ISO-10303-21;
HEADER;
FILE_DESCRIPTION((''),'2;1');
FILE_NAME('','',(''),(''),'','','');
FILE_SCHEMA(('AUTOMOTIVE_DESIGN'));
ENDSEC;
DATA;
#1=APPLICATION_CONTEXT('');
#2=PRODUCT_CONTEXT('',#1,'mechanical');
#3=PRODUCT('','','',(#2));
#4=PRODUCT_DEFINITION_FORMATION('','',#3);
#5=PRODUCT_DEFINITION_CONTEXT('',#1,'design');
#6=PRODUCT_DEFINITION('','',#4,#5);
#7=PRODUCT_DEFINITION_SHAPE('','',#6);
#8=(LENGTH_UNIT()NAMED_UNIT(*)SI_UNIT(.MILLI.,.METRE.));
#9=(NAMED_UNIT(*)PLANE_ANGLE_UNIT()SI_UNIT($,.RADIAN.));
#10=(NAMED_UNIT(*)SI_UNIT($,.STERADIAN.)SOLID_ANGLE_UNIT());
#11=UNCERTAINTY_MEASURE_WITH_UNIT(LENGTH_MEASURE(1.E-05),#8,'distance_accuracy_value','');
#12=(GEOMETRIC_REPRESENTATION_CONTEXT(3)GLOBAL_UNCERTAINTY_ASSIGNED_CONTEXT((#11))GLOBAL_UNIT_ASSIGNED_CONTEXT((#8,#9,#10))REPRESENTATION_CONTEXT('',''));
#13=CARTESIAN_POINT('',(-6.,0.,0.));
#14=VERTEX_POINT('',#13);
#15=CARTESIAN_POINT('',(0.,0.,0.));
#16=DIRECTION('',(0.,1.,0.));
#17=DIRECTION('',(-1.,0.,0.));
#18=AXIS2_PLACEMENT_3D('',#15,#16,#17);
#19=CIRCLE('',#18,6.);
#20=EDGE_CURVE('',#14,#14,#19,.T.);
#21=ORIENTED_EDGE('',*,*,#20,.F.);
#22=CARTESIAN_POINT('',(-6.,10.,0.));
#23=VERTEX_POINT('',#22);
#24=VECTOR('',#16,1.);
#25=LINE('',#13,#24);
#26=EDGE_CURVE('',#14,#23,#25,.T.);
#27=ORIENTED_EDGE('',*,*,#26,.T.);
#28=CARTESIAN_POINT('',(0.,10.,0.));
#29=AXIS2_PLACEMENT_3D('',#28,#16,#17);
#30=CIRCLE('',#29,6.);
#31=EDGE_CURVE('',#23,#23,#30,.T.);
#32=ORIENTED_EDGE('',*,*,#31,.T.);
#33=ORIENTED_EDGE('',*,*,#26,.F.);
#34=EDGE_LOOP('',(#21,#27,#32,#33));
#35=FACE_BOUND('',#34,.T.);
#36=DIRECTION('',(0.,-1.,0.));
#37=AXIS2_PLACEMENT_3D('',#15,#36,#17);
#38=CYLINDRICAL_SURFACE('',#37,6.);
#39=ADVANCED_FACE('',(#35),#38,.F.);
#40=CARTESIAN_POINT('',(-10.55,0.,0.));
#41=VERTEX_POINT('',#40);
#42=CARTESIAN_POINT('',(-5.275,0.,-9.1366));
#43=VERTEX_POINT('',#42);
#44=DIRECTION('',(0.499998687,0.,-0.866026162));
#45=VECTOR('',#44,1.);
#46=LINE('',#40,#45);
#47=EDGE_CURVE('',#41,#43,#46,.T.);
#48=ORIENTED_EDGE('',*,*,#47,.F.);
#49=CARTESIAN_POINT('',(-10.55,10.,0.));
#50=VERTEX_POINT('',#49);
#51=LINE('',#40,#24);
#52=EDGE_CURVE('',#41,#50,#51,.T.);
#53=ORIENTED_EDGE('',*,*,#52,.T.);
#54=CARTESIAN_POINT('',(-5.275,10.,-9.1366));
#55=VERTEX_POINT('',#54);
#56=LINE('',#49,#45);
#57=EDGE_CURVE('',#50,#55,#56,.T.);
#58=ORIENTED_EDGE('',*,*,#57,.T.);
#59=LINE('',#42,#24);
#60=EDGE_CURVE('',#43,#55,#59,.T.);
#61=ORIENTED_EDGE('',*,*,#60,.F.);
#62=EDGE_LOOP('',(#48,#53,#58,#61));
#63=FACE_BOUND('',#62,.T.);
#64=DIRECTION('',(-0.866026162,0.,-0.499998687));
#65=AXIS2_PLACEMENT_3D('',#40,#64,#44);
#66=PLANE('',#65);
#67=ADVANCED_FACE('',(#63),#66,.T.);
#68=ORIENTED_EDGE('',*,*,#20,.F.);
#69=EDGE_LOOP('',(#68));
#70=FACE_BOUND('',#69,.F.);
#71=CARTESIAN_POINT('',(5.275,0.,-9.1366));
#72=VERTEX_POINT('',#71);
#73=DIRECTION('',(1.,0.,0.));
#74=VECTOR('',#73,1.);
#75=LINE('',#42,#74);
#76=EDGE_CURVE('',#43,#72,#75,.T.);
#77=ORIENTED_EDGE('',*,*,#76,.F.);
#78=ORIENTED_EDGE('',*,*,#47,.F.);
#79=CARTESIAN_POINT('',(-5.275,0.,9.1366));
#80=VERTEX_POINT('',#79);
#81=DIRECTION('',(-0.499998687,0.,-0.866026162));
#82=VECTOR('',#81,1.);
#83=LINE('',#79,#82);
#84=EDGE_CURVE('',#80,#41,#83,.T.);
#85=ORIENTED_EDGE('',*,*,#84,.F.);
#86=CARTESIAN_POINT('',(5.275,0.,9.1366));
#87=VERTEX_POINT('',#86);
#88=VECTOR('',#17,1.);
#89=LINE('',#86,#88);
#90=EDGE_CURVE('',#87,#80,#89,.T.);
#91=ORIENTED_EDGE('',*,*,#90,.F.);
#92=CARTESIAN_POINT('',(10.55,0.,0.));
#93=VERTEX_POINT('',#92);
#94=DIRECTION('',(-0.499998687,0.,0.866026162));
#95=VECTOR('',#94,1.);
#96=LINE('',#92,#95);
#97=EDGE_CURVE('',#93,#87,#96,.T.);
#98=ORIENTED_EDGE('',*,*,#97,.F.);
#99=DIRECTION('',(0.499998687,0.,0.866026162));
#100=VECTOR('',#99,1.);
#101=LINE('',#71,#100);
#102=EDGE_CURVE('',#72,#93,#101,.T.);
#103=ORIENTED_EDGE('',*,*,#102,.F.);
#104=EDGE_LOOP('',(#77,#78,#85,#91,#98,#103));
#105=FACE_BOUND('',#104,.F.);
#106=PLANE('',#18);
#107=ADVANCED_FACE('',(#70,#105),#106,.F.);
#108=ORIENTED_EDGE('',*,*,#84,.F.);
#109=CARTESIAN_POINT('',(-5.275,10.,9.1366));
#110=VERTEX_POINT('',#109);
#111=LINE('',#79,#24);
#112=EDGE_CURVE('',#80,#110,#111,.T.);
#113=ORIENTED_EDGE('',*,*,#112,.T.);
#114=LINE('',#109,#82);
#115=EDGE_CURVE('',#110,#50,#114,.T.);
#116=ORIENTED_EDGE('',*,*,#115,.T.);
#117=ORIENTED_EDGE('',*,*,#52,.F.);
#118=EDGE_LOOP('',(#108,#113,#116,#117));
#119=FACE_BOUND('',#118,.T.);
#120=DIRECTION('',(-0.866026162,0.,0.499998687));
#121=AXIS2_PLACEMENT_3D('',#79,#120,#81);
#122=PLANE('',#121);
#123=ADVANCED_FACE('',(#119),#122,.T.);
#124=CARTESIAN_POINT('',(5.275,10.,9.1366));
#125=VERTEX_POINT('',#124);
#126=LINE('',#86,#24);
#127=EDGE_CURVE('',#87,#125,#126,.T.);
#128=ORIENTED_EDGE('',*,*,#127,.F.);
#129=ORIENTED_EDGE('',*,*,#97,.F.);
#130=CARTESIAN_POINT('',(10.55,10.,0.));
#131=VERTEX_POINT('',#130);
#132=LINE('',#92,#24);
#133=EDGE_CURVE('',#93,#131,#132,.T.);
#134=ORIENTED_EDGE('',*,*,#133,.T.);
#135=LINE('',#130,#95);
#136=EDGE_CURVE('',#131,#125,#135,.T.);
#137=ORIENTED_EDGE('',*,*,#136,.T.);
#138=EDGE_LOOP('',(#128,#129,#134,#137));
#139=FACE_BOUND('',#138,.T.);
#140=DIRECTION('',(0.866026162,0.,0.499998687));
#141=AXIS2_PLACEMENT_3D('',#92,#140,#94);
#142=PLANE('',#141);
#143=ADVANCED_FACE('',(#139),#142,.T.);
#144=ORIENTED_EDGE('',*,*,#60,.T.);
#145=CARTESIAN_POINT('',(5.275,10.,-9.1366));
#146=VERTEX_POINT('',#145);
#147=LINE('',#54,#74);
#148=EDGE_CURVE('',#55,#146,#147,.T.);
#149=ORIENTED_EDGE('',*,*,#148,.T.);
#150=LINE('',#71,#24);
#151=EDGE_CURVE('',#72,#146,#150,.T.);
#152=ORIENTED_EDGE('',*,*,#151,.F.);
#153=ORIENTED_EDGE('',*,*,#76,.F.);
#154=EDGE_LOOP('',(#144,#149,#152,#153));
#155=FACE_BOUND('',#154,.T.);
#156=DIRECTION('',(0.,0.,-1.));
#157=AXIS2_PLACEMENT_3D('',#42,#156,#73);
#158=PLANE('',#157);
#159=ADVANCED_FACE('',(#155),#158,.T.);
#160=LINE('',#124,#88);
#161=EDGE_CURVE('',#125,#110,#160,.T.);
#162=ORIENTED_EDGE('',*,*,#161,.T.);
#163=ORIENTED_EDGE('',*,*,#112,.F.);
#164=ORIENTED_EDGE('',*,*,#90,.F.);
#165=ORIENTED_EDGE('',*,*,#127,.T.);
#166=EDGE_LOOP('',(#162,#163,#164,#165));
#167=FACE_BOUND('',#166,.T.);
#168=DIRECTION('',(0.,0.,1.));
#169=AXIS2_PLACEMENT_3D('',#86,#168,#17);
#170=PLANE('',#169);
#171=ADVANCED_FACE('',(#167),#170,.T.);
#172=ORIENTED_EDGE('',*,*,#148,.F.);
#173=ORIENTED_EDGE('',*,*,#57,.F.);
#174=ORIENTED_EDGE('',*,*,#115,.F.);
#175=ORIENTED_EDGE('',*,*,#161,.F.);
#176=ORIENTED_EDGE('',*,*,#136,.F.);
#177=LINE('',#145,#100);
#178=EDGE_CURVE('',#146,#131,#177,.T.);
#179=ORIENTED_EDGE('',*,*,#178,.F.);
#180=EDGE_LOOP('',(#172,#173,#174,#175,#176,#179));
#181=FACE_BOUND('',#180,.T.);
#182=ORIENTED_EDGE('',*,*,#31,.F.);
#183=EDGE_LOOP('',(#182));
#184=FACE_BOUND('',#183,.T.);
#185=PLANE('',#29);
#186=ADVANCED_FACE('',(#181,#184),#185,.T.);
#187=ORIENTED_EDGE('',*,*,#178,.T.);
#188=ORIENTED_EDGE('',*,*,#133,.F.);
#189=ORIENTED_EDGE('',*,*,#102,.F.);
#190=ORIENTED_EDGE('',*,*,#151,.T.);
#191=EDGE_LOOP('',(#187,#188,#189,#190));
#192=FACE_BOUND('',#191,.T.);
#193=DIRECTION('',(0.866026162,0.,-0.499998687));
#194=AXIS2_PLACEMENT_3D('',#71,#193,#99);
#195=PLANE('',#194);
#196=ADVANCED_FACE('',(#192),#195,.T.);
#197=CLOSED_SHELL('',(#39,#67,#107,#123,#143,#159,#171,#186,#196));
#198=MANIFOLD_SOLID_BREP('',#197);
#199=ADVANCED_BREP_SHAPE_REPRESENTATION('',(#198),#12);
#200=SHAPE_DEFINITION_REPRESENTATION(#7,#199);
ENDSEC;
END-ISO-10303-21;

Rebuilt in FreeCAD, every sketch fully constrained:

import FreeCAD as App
import Part
import Sketcher

V = App.Vector
Q = App.Units.Quantity


def add_polygon(sketch, points):
    """Adds a closed chain of lines whose ends are joined by coincident constraints."""
    first, n = sketch.GeometryCount, len(points)
    for a, b in zip(points, points[1:] + points[:1]):
        sketch.addGeometry(Part.LineSegment(App.Vector(*a, 0), App.Vector(*b, 0)), False)
    for i in range(n):
        sketch.addConstraint(Sketcher.Constraint("Coincident", first + i, 2, first + (i + 1) % n, 1))

doc = App.newDocument("Part")
body = doc.addObject("PartDesign::Body", "Body")

# Sketch on XZ plane
sketch1 = doc.addObject("Sketcher::SketchObject", "Sketch")
body.addObject(sketch1)
sketch1.AttachmentSupport = (doc.XZ_Plane, [""])
sketch1.MapMode = "FlatFace"
add_polygon(sketch1, [(-5, -9), (-11, 0), (-5, 9), (5, 9), (11, 0), (5, -9)])  # lines 0-5
sketch1.addGeometry(Part.Circle(V(0, 0, 0), V(0, 0, 1), 6), False)  # 6
sketch1.addConstraint(Sketcher.Constraint("Horizontal", 2))
sketch1.addConstraint(Sketcher.Constraint("Horizontal", 5))
sketch1.addConstraint(Sketcher.Constraint("Coincident", 6, 3, -1, 1))
sketch1.addConstraint(Sketcher.Constraint("Symmetric", 0, 2, 3, 2, -1, 1))
sketch1.addConstraint(Sketcher.Constraint("Symmetric", 1, 2, 4, 2, -1, 1))
sketch1.addConstraint(Sketcher.Constraint("PointOnObject", 0, 2, -1))
sketch1.addConstraint(Sketcher.Constraint("Parallel", 0, 3))
sketch1.addConstraint(Sketcher.Constraint("Vertical", 2, 2, 4, 2))
sketch1.addConstraint(Sketcher.Constraint("Diameter", 6, Q("12 mm")))
sketch1.addConstraint(Sketcher.Constraint("DistanceX", 0, 2, 3, 2, Q("21.1 mm")))
sketch1.addConstraint(Sketcher.Constraint("Angle", 0, Q("120 deg")))
sketch1.addConstraint(Sketcher.Constraint("DistanceX", 2, 1, 2, 2, Q("10.55 mm")))
pad1 = doc.addObject("PartDesign::Pad", "Pad")
body.addObject(pad1)
pad1.Profile = sketch1
pad1.Length = 10
pad1.Reversed = True

doc.recompute()
